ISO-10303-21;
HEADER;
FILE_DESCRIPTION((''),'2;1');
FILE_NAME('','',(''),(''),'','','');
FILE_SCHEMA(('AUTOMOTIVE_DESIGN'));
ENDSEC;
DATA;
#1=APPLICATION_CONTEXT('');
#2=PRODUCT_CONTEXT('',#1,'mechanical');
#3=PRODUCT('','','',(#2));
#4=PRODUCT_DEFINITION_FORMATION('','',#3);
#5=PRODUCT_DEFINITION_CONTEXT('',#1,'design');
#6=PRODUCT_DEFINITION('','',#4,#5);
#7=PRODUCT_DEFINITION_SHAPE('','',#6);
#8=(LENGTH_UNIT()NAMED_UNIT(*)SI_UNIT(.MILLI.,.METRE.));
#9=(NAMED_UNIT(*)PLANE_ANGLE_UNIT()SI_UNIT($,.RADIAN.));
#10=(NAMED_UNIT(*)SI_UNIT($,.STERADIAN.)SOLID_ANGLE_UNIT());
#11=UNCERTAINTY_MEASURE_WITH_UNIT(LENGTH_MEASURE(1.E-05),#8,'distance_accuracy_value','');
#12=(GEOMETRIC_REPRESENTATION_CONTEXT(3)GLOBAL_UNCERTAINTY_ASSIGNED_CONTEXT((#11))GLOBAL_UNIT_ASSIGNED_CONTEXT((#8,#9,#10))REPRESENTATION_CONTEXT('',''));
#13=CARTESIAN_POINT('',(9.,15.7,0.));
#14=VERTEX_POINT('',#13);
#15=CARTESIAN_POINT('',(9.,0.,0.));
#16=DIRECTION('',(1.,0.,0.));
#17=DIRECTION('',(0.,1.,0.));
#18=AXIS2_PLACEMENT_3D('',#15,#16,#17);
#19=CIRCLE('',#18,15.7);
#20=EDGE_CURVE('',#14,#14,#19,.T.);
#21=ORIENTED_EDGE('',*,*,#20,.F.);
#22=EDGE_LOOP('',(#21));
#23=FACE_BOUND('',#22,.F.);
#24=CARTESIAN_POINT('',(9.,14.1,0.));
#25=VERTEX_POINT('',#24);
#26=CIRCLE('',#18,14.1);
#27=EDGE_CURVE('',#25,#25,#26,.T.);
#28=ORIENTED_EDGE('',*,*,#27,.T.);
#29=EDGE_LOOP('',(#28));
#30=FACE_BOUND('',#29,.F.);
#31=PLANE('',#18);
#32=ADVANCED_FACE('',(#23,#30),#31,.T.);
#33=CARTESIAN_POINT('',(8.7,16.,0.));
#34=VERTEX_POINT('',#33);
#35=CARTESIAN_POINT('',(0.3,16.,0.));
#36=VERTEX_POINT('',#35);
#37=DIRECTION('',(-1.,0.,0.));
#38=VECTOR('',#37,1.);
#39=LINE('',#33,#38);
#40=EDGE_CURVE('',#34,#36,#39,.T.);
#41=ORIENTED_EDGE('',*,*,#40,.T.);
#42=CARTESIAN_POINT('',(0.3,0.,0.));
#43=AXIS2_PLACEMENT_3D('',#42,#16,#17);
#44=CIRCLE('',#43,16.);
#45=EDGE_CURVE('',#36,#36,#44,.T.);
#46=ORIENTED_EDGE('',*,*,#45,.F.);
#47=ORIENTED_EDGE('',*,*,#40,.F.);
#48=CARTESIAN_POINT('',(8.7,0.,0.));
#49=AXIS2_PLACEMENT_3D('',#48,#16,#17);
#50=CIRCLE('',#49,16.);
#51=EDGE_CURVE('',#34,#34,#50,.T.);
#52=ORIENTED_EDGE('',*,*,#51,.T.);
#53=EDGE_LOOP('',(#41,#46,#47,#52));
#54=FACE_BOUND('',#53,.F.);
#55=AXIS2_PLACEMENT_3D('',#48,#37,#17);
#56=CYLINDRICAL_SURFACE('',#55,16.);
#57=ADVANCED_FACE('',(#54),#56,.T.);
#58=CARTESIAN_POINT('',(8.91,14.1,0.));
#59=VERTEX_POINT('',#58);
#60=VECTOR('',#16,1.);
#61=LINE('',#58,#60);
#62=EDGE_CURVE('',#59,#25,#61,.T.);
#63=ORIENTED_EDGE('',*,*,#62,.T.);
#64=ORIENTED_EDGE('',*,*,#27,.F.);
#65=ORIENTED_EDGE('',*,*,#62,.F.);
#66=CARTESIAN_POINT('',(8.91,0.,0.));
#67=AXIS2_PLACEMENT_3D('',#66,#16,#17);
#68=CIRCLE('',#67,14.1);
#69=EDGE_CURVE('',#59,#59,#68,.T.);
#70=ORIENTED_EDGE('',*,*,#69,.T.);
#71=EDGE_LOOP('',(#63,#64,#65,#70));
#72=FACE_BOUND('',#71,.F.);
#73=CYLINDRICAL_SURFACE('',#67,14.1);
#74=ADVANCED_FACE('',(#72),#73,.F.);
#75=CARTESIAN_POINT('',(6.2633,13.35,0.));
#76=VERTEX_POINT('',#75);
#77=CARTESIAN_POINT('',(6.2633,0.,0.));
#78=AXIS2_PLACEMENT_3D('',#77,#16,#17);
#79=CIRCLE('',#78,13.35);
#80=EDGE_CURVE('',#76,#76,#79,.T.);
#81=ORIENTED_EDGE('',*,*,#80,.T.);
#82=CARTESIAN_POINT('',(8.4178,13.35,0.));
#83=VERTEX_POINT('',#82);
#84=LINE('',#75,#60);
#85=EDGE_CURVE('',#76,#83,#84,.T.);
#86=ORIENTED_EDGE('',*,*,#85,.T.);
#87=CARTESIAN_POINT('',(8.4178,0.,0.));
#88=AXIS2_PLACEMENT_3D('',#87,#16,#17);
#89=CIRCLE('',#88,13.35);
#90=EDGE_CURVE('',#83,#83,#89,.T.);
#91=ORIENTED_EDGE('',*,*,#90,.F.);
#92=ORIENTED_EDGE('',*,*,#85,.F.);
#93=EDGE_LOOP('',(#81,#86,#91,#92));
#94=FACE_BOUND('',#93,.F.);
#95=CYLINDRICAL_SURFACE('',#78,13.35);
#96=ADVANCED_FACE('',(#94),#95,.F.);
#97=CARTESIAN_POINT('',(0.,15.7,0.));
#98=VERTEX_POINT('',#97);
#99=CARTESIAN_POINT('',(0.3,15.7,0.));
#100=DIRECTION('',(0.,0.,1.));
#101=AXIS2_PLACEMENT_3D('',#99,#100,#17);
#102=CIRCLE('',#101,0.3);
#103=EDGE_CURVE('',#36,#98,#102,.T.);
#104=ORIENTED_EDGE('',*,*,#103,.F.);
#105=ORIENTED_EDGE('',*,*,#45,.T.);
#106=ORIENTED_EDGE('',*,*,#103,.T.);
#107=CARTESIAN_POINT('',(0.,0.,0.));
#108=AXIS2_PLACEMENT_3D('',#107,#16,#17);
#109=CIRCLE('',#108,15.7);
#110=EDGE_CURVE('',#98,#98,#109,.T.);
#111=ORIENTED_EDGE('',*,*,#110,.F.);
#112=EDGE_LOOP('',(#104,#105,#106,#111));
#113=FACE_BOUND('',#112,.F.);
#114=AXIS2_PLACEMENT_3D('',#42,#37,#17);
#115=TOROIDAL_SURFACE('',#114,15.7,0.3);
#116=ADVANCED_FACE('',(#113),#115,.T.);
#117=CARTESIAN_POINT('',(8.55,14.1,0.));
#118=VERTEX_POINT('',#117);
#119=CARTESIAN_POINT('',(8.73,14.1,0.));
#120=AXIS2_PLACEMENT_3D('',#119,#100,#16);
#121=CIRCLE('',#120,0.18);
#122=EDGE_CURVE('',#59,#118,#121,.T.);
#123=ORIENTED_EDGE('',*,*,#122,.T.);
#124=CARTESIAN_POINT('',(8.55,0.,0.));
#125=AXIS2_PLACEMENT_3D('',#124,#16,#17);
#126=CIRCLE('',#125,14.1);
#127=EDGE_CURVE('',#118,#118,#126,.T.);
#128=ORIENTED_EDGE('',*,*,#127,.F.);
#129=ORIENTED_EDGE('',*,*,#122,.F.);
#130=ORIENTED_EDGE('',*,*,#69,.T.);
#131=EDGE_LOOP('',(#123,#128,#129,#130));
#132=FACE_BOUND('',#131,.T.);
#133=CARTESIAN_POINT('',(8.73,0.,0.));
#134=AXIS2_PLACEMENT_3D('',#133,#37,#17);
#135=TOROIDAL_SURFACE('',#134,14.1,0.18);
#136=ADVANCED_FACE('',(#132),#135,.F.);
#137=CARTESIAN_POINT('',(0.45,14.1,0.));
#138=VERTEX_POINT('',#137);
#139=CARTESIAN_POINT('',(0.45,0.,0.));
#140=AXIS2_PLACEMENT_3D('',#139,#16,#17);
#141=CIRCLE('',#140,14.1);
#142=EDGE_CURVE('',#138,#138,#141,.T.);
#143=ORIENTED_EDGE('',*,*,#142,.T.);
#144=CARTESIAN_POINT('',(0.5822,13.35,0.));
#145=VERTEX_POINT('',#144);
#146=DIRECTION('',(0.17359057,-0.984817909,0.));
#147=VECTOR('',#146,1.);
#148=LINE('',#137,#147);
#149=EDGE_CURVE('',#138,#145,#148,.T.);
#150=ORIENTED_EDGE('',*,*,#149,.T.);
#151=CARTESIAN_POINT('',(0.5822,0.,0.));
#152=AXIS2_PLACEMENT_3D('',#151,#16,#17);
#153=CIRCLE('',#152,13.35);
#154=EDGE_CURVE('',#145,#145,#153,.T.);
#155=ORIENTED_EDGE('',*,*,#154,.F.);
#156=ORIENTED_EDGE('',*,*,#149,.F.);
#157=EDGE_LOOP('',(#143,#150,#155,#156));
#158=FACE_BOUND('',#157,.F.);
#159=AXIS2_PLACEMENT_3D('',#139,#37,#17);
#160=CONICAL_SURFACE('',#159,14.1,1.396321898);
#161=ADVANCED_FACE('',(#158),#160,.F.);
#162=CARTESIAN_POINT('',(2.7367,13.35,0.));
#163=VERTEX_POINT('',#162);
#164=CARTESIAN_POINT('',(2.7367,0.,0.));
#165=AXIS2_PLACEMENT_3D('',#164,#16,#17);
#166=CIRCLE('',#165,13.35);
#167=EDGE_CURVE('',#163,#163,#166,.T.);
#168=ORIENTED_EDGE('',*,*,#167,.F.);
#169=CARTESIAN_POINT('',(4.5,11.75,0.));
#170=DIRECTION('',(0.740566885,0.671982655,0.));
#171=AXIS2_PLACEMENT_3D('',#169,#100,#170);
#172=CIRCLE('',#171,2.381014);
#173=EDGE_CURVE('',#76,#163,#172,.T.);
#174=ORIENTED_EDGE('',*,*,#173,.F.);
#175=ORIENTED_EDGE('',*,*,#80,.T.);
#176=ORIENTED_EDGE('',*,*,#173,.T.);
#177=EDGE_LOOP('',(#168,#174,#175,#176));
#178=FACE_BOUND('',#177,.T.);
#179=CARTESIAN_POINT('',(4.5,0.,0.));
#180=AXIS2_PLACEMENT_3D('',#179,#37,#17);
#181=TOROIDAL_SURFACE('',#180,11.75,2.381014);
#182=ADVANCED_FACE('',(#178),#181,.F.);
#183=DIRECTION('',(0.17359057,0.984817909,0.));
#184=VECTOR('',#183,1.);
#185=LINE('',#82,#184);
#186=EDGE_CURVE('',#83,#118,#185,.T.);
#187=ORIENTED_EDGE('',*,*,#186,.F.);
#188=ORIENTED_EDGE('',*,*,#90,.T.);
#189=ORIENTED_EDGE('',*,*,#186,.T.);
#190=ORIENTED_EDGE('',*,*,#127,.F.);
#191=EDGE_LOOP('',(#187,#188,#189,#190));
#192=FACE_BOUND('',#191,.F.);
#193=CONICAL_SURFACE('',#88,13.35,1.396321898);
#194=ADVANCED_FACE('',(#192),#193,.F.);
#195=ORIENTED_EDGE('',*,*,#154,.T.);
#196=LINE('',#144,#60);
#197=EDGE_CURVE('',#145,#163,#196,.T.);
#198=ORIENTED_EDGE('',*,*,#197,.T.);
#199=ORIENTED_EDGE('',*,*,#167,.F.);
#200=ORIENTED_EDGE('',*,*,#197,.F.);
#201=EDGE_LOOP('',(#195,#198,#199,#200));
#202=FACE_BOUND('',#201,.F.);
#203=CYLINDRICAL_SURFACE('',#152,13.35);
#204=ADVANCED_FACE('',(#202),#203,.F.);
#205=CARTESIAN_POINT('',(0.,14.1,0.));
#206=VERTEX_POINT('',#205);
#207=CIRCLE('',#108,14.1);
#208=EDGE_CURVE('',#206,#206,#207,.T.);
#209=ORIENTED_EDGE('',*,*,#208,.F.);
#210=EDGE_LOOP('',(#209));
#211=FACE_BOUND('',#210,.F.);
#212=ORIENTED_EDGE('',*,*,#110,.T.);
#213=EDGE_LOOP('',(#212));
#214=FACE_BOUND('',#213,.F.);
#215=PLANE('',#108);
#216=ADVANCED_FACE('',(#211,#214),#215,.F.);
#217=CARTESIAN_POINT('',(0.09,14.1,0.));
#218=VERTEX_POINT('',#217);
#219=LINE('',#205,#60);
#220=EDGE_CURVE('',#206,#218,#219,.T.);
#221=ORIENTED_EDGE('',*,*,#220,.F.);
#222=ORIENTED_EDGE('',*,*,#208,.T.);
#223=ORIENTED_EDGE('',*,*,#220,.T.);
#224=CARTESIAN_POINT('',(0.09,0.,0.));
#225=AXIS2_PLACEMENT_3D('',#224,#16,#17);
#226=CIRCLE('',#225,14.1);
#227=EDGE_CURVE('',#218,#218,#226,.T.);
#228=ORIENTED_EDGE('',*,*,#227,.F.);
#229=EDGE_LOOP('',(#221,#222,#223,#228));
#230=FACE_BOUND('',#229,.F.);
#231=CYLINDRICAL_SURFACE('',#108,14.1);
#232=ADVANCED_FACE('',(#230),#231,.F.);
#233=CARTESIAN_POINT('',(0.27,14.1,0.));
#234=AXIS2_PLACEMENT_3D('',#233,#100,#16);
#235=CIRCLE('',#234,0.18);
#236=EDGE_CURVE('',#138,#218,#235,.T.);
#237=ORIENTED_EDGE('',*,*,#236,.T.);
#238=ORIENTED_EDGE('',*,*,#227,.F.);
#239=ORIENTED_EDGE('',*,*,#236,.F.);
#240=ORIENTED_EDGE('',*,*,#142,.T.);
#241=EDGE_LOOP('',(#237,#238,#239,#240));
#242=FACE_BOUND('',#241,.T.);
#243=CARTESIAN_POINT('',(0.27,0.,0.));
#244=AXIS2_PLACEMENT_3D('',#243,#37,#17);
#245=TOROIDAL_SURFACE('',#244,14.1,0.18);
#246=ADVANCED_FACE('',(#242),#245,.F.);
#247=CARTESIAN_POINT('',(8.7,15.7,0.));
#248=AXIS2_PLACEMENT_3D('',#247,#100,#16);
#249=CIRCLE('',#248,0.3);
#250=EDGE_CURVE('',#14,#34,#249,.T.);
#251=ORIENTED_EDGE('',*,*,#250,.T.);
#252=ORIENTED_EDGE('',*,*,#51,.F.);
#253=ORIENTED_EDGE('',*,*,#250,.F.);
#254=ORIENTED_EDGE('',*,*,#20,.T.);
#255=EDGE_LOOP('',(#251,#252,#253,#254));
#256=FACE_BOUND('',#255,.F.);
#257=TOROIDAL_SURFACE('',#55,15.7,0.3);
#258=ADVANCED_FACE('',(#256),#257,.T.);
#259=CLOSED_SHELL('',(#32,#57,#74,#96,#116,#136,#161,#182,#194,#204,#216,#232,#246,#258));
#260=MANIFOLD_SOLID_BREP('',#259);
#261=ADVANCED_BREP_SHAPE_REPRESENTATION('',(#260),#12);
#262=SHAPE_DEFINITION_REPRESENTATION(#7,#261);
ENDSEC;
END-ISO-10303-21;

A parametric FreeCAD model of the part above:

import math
import FreeCAD as App
import Part
import Sketcher

V = App.Vector

doc = App.newDocument("Part")
body = doc.addObject("PartDesign::Body", "Body")

# Sketch on XY plane
sketch1 = body.newObject("Sketcher::SketchObject", "Sketch")
sketch1.AttachmentSupport = (doc.getObject("XY_Plane"), [""])
sketch1.MapMode = "FlatFace"
sketch1.addGeometry(Part.LineSegment(V(0, 15.7, 0), V(0, 14.1, 0)), False)
sketch1.addGeometry(Part.LineSegment(V(0, 14.1, 0), V(0.09, 14.1, 0)), False)
sketch1.addGeometry(Part.ArcOfCircle(Part.Circle(V(0.27, 14.1, 0), V(0, 0, 1), 0.18), math.radians(0), math.radians(180)), False)
sketch1.addGeometry(Part.LineSegment(V(0.45, 14.1, 0), V(0.58, 13.35, 0)), False)
sketch1.addGeometry(Part.LineSegment(V(0.58, 13.35, 0), V(2.74, 13.35, 0)), False)
sketch1.addGeometry(Part.ArcOfCircle(Part.Circle(V(4.5, 11.75, 0), V(0, 0, 1), 2.38), math.radians(42), math.radians(138)), False)
sketch1.addGeometry(Part.LineSegment(V(6.26, 13.35, 0), V(8.42, 13.35, 0)), False)
sketch1.addGeometry(Part.LineSegment(V(8.42, 13.35, 0), V(8.55, 14.1, 0)), False)
sketch1.addGeometry(Part.ArcOfCircle(Part.Circle(V(8.73, 14.1, 0), V(0, 0, 1), 0.18), math.radians(0), math.radians(180)), False)
sketch1.addGeometry(Part.LineSegment(V(8.91, 14.1, 0), V(9, 14.1, 0)), False)
sketch1.addGeometry(Part.LineSegment(V(9, 14.1, 0), V(9, 15.7, 0)), False)
sketch1.addGeometry(Part.ArcOfCircle(Part.Circle(V(8.7, 15.7, 0), V(0, 0, 1), 0.3), math.radians(0), math.radians(90)), False)
sketch1.addGeometry(Part.LineSegment(V(8.7, 16, 0), V(0.3, 16, 0)), False)
sketch1.addGeometry(Part.ArcOfCircle(Part.Circle(V(0.3, 15.7, 0), V(0, 0, 1), 0.3), math.radians(90), math.radians(180)), False)
sketch1.addConstraint(Sketcher.Constraint("Coincident", 0, 2, 1, 1))
sketch1.addConstraint(Sketcher.Constraint("Coincident", 1, 2, 2, 2))
sketch1.addConstraint(Sketcher.Constraint("Coincident", 2, 1, 3, 1))
sketch1.addConstraint(Sketcher.Constraint("Coincident", 3, 2, 4, 1))
sketch1.addConstraint(Sketcher.Constraint("Coincident", 4, 2, 5, 2))
sketch1.addConstraint(Sketcher.Constraint("Coincident", 5, 1, 6, 1))
sketch1.addConstraint(Sketcher.Constraint("Coincident", 6, 2, 7, 1))
sketch1.addConstraint(Sketcher.Constraint("Coincident", 7, 2, 8, 2))
sketch1.addConstraint(Sketcher.Constraint("Coincident", 8, 1, 9, 1))
sketch1.addConstraint(Sketcher.Constraint("Coincident", 9, 2, 10, 1))
sketch1.addConstraint(Sketcher.Constraint("Tangent", 10, 2, 11, 1))
sketch1.addConstraint(Sketcher.Constraint("Tangent", 11, 2, 12, 1))
sketch1.addConstraint(Sketcher.Constraint("Tangent", 12, 2, 13, 1))
sketch1.addConstraint(Sketcher.Constraint("Tangent", 13, 2, 0, 1))
sketch1.addConstraint(Sketcher.Constraint("Vertical", 0))
sketch1.addConstraint(Sketcher.Constraint("Horizontal", 1))
sketch1.addConstraint(Sketcher.Constraint("Horizontal", 4))
sketch1.addConstraint(Sketcher.Constraint("Horizontal", 6))
sketch1.addConstraint(Sketcher.Constraint("Horizontal", 9))
sketch1.addConstraint(Sketcher.Constraint("Vertical", 10))
sketch1.addConstraint(Sketcher.Constraint("Horizontal", 12))
sketch1.addConstraint(Sketcher.Constraint("Equal", 2, 8))
sketch1.addConstraint(Sketcher.Constraint("Equal", 11, 13))
sketch1.addConstraint(Sketcher.Constraint("PointOnObject", 0, 2, -2))
sketch1.addConstraint(Sketcher.Constraint("Horizontal", 2, 3, 8, 3))
sketch1.addConstraint(Sketcher.Constraint("Horizontal", 8, 3, 0, 2))
sketch1.addConstraint(Sketcher.Constraint("Horizontal", 1, 2, 2, 1))
sketch1.addConstraint(Sketcher.Constraint("Horizontal", 4, 2, 5, 1))
sketch1.addConstraint(Sketcher.Constraint("Horizontal", 2, 1, 7, 2))
sketch1.addConstraint(Sketcher.Constraint("Horizontal", 7, 2, 8, 1))
sketch1.addConstraint(Sketcher.Constraint("Equal", 4, 6))
sketch1.addConstraint(Sketcher.Constraint("Equal", 1, 9))
sketch1.addConstraint(Sketcher.Constraint("Equal", 3, 7))
sketch1.addConstraint(Sketcher.Constraint("Radius", 11, 0.3))
sketch1.addConstraint(Sketcher.Constraint("Radius", 2, 0.18))
sketch1.addConstraint(Sketcher.Constraint("DistanceX", 12, 2, 12, 1, 8.4))
sketch1.addConstraint(Sketcher.Constraint("DistanceY", 0, 2, 0, 1, 1.6))
sketch1.addConstraint(Sketcher.Constraint("DistanceY", -1, 1, 11, 2, 16.0))
sketch1.addConstraint(Sketcher.Constraint("Radius", 5, 2.381))
sketch1.addConstraint(Sketcher.Constraint("DistanceX", 1, 1, 1, 2, 0.09))
sketch1.addConstraint(Sketcher.Constraint("DistanceY", 5, 3, 4, 2, 1.6))
sketch1.addConstraint(Sketcher.Constraint("DistanceY", -1, 1, 5, 3, 11.75))
sketch1.addConstraint(Sketcher.Constraint("DistanceX", 4, 1, 4, 2, 2.1545))
revolution = body.newObject("PartDesign::Revolution", "Revolution")
revolution.Profile = sketch1
revolution.ReferenceAxis = (sketch1, ["H_Axis"])
revolution.Angle = 360

doc.recompute()
